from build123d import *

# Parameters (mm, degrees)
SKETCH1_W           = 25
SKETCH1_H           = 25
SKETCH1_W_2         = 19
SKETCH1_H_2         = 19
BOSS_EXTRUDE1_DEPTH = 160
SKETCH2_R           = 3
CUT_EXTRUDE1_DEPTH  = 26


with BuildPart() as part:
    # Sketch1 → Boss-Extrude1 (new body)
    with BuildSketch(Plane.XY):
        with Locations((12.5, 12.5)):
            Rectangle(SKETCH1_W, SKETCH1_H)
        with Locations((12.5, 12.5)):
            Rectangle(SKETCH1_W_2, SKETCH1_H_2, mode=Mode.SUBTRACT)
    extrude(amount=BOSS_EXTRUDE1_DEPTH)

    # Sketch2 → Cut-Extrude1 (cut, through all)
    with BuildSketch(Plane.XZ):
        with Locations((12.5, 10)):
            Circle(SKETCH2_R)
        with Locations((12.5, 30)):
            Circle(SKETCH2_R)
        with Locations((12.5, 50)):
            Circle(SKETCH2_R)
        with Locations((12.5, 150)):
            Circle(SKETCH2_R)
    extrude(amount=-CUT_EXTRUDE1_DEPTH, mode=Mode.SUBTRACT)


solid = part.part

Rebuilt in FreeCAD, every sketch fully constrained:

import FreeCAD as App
import Part
import Sketcher

V = App.Vector


def add_polygon(sketch, points):
    """Adds a closed chain of lines whose ends are joined by coincident constraints."""
    first, n = sketch.GeometryCount, len(points)
    for a, b in zip(points, points[1:] + points[:1]):
        sketch.addGeometry(Part.LineSegment(App.Vector(*a, 0), App.Vector(*b, 0)), False)
    for i in range(n):
        sketch.addConstraint(Sketcher.Constraint("Coincident", first + i, 2, first + (i + 1) % n, 1))

doc = App.newDocument("Part")
body = doc.addObject("PartDesign::Body", "Body")

sketch1 = body.newObject("Sketcher::SketchObject", "Sketch")
sketch1.AttachmentSupport = (doc.getObject("XY_Plane"), [""])
sketch1.MapMode = "FlatFace"
add_polygon(sketch1, [(0, 25), (0, 0), (25, 0), (25, 25)])
add_polygon(sketch1, [(22, 3), (3, 3), (3, 22), (22, 22)])
sketch1.addConstraint(Sketcher.Constraint("Vertical", 0))
sketch1.addConstraint(Sketcher.Constraint("Horizontal", 1))
sketch1.addConstraint(Sketcher.Constraint("Vertical", 2))
sketch1.addConstraint(Sketcher.Constraint("Horizontal", 3))
sketch1.addConstraint(Sketcher.Constraint("Horizontal", 4))
sketch1.addConstraint(Sketcher.Constraint("Vertical", 5))
sketch1.addConstraint(Sketcher.Constraint("Horizontal", 6))
sketch1.addConstraint(Sketcher.Constraint("Vertical", 7))
sketch1.addConstraint(Sketcher.Constraint("Coincident", 0, 2, -1, 1))
sketch1.addConstraint(Sketcher.Constraint("Equal", 3, 0))
sketch1.addConstraint(Sketcher.Constraint("Equal", 6, 5))
sketch1.addConstraint(Sketcher.Constraint("DistanceX", 1, 1, 1, 2, 25.0))
sketch1.addConstraint(Sketcher.Constraint("DistanceX", 4, 2, 4, 1, 19.0))
sketch1.addConstraint(Sketcher.Constraint("DistanceX", -1, 1, 4, 2, 3.0))
sketch1.addConstraint(Sketcher.Constraint("DistanceY", -1, 1, 4, 2, 3.0))
pad1 = body.newObject("PartDesign::Pad", "Pad")
pad1.Profile = sketch1
pad1.Length = 160

sketch2 = body.newObject("Sketcher::SketchObject", "Sketch001")
sketch2.AttachmentSupport = (doc.getObject("XZ_Plane"), [""])
sketch2.MapMode = "FlatFace"
sketch2.addGeometry(Part.Circle(V(12.5, 10, 0), V(0, 0, 1), 3), False)
sketch2.addGeometry(Part.Circle(V(12.5, 30, 0), V(0, 0, 1), 3), False)
sketch2.addGeometry(Part.Circle(V(12.5, 50, 0), V(0, 0, 1), 3), False)
sketch2.addGeometry(Part.Circle(V(12.5, 150, 0), V(0, 0, 1), 3), False)
sketch2.addConstraint(Sketcher.Constraint("Equal", 0, 1))
sketch2.addConstraint(Sketcher.Constraint("Equal", 1, 2))
sketch2.addConstraint(Sketcher.Constraint("Equal", 2, 3))
sketch2.addConstraint(Sketcher.Constraint("Vertical", 0, 3, 1, 3))
sketch2.addConstraint(Sketcher.Constraint("Vertical", 1, 3, 2, 3))
sketch2.addConstraint(Sketcher.Constraint("Vertical", 2, 3, 3, 3))
sketch2.addConstraint(Sketcher.Constraint("Diameter", 0, 6.0))
sketch2.addConstraint(Sketcher.Constraint("DistanceY", -1, 1, 0, 3, 10.0))
sketch2.addConstraint(Sketcher.Constraint("DistanceY", -1, 1, 1, 3, 30.0))
sketch2.addConstraint(Sketcher.Constraint("DistanceY", -1, 1, 2, 3, 50.0))
sketch2.addConstraint(Sketcher.Constraint("DistanceY", -1, 1, 3, 3, 150.0))
sketch2.addConstraint(Sketcher.Constraint("DistanceX", -1, 1, 0, 3, 12.5))
pocket1 = body.newObject("PartDesign::Pocket", "Pocket")
pocket1.Profile = sketch2
pocket1.Type = "ThroughAll"

doc.recompute()
